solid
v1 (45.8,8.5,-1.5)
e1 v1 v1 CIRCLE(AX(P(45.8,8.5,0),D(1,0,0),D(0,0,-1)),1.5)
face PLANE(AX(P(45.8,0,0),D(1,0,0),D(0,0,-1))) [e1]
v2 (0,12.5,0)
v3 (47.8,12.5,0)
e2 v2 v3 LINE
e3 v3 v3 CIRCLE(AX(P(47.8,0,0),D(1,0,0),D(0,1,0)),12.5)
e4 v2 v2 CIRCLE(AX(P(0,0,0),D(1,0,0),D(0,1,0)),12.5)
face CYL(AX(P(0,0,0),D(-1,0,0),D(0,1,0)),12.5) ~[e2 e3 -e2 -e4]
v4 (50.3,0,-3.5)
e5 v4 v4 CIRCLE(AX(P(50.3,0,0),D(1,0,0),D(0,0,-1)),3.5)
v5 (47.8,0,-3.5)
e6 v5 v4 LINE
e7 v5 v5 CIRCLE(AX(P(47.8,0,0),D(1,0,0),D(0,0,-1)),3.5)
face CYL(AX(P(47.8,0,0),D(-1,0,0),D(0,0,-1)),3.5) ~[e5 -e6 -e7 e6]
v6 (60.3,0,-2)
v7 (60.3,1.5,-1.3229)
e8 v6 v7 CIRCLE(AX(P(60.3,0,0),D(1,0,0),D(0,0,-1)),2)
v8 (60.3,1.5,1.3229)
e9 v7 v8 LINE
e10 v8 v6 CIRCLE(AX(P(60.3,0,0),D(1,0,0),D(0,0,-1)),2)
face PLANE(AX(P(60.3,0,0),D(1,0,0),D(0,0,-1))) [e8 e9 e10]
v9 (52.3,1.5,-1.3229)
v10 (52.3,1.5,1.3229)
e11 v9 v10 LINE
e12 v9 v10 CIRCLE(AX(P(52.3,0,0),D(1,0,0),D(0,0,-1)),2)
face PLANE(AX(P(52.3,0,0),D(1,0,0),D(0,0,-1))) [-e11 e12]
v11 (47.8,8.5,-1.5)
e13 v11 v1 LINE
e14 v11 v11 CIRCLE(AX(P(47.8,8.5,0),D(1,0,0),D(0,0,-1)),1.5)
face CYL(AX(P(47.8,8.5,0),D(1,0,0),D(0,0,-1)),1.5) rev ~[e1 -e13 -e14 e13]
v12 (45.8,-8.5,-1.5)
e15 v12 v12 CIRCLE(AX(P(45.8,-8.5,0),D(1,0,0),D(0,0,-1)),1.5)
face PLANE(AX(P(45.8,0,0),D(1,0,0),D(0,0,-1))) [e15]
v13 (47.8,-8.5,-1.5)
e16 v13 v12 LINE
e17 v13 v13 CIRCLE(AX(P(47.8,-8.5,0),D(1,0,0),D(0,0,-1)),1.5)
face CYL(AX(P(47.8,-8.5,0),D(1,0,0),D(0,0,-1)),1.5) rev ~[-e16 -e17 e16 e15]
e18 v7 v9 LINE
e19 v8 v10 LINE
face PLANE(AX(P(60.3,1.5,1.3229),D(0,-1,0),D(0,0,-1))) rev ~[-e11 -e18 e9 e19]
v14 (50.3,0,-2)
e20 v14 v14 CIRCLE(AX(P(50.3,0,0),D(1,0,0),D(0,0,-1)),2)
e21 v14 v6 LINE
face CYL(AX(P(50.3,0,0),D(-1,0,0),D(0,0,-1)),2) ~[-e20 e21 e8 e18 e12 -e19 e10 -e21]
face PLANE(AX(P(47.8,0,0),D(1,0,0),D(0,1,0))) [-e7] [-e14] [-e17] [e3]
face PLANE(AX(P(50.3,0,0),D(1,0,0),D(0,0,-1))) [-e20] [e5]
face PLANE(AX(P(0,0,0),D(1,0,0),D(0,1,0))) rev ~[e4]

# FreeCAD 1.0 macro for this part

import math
import FreeCAD as App
import Part
import Sketcher
from FreeCAD import Vector

doc = App.newDocument("Part")
body = doc.addObject("PartDesign::Body", "Body")

sketch1 = body.newObject("Sketcher::SketchObject", "Sketch")
sketch1.AttachmentSupport = (doc.getObject("YZ_Plane"), [""])
sketch1.MapMode = "FlatFace"
sketch1.addGeometry(Part.Circle(Vector(0, 0, 0), Vector(0, 0, 1), 12.5), False)
sketch1.addConstraint([
    Sketcher.Constraint("Coincident", 0, 3, -1, 1),
    Sketcher.Constraint("Diameter", 0, 25.0),
])
pad1 = body.newObject("PartDesign::Pad", "Pad")
pad1.Profile = sketch1
pad1.Length = 47.8

sketch2 = body.newObject("Sketcher::SketchObject", "Sketch001")
sketch2.AttachmentSupport = (doc.getObject("YZ_Plane"), [""])
sketch2.MapMode = "FlatFace"
sketch2.AttachmentOffset = App.Placement(Vector(0, 0, 47.8), App.Rotation())
sketch2.addGeometry(Part.Circle(Vector(0, 0, 0), Vector(0, 0, 1), 3.5), False)
sketch2.addConstraint([
    Sketcher.Constraint("Coincident", 0, 3, -1, 1),
    Sketcher.Constraint("Diameter", 0, 7.0),
])
pad2 = body.newObject("PartDesign::Pad", "Pad001")
pad2.Profile = sketch2
pad2.Length = 2.5

sketch3 = body.newObject("Sketcher::SketchObject", "Sketch002")
sketch3.AttachmentSupport = (doc.getObject("YZ_Plane"), [""])
sketch3.MapMode = "FlatFace"
sketch3.AttachmentOffset = App.Placement(Vector(0, 0, 47.8), App.Rotation())
sketch3.addGeometry([
    Part.Circle(Vector(-8.5, 0, 0), Vector(0, 0, 1), 1.5),
    Part.Circle(Vector(8.5, 0, 0), Vector(0, 0, 1), 1.5),
], False)
sketch3.addConstraint([
    Sketcher.Constraint("Equal", 0, 1),
    Sketcher.Constraint("Symmetric", 0, 3, 1, 3, -1, 1),
    Sketcher.Constraint("PointOnObject", 0, 3, -1),
    Sketcher.Constraint("Diameter", 0, 3.0),
    Sketcher.Constraint("DistanceX", 0, 3, 1, 3, 17.0),
])
pocket1 = body.newObject("PartDesign::Pocket", "Pocket")
pocket1.Profile = sketch3
pocket1.Length = 2

sketch4 = body.newObject("Sketcher::SketchObject", "Sketch003")
sketch4.AttachmentSupport = (doc.getObject("YZ_Plane"), [""])
sketch4.MapMode = "FlatFace"
sketch4.AttachmentOffset = App.Placement(Vector(0, 0, 50.3), App.Rotation())
sketch4.addGeometry(Part.Circle(Vector(0, 0, 0), Vector(0, 0, 1), 2), False)
sketch4.addConstraint([
    Sketcher.Constraint("Coincident", 0, 3, -1, 1),
    Sketcher.Constraint("Diameter", 0, 4.0),
])
pad3 = body.newObject("PartDesign::Pad", "Pad002")
pad3.Profile = sketch4
pad3.Length = 10

sketch5 = body.newObject("Sketcher::SketchObject", "Sketch004")
sketch5.AttachmentSupport = (doc.getObject("YZ_Plane"), [""])
sketch5.MapMode = "FlatFace"
sketch5.AttachmentOffset = App.Placement(Vector(0, 0, 60.3), App.Rotation())
sketch5.addGeometry([
    Part.LineSegment(Vector(1.5, 1.3229, 0), Vector(1.5, -1.3229, 0)),
    Part.ArcOfCircle(Part.Circle(Vector(0, 0, 0), Vector(0, 0, 1), 2), math.radians(-41.410145), math.radians(41.410145)),
], False)
sketch5.addConstraint([
    Sketcher.Constraint("Coincident", 0, 1, 1, 2),
    Sketcher.Constraint("Coincident", 1, 1, 0, 2),
    Sketcher.Constraint("Vertical", 0),
    Sketcher.Constraint("Coincident", 1, 3, -1, 1),
    Sketcher.Constraint("Radius", 1, 2.0),
    Sketcher.Constraint("DistanceX", -1, 1, 0, 1, 1.5),
])
pocket2 = body.newObject("PartDesign::Pocket", "Pocket001")
pocket2.Profile = sketch5
pocket2.Length = 8

doc.recompute()
